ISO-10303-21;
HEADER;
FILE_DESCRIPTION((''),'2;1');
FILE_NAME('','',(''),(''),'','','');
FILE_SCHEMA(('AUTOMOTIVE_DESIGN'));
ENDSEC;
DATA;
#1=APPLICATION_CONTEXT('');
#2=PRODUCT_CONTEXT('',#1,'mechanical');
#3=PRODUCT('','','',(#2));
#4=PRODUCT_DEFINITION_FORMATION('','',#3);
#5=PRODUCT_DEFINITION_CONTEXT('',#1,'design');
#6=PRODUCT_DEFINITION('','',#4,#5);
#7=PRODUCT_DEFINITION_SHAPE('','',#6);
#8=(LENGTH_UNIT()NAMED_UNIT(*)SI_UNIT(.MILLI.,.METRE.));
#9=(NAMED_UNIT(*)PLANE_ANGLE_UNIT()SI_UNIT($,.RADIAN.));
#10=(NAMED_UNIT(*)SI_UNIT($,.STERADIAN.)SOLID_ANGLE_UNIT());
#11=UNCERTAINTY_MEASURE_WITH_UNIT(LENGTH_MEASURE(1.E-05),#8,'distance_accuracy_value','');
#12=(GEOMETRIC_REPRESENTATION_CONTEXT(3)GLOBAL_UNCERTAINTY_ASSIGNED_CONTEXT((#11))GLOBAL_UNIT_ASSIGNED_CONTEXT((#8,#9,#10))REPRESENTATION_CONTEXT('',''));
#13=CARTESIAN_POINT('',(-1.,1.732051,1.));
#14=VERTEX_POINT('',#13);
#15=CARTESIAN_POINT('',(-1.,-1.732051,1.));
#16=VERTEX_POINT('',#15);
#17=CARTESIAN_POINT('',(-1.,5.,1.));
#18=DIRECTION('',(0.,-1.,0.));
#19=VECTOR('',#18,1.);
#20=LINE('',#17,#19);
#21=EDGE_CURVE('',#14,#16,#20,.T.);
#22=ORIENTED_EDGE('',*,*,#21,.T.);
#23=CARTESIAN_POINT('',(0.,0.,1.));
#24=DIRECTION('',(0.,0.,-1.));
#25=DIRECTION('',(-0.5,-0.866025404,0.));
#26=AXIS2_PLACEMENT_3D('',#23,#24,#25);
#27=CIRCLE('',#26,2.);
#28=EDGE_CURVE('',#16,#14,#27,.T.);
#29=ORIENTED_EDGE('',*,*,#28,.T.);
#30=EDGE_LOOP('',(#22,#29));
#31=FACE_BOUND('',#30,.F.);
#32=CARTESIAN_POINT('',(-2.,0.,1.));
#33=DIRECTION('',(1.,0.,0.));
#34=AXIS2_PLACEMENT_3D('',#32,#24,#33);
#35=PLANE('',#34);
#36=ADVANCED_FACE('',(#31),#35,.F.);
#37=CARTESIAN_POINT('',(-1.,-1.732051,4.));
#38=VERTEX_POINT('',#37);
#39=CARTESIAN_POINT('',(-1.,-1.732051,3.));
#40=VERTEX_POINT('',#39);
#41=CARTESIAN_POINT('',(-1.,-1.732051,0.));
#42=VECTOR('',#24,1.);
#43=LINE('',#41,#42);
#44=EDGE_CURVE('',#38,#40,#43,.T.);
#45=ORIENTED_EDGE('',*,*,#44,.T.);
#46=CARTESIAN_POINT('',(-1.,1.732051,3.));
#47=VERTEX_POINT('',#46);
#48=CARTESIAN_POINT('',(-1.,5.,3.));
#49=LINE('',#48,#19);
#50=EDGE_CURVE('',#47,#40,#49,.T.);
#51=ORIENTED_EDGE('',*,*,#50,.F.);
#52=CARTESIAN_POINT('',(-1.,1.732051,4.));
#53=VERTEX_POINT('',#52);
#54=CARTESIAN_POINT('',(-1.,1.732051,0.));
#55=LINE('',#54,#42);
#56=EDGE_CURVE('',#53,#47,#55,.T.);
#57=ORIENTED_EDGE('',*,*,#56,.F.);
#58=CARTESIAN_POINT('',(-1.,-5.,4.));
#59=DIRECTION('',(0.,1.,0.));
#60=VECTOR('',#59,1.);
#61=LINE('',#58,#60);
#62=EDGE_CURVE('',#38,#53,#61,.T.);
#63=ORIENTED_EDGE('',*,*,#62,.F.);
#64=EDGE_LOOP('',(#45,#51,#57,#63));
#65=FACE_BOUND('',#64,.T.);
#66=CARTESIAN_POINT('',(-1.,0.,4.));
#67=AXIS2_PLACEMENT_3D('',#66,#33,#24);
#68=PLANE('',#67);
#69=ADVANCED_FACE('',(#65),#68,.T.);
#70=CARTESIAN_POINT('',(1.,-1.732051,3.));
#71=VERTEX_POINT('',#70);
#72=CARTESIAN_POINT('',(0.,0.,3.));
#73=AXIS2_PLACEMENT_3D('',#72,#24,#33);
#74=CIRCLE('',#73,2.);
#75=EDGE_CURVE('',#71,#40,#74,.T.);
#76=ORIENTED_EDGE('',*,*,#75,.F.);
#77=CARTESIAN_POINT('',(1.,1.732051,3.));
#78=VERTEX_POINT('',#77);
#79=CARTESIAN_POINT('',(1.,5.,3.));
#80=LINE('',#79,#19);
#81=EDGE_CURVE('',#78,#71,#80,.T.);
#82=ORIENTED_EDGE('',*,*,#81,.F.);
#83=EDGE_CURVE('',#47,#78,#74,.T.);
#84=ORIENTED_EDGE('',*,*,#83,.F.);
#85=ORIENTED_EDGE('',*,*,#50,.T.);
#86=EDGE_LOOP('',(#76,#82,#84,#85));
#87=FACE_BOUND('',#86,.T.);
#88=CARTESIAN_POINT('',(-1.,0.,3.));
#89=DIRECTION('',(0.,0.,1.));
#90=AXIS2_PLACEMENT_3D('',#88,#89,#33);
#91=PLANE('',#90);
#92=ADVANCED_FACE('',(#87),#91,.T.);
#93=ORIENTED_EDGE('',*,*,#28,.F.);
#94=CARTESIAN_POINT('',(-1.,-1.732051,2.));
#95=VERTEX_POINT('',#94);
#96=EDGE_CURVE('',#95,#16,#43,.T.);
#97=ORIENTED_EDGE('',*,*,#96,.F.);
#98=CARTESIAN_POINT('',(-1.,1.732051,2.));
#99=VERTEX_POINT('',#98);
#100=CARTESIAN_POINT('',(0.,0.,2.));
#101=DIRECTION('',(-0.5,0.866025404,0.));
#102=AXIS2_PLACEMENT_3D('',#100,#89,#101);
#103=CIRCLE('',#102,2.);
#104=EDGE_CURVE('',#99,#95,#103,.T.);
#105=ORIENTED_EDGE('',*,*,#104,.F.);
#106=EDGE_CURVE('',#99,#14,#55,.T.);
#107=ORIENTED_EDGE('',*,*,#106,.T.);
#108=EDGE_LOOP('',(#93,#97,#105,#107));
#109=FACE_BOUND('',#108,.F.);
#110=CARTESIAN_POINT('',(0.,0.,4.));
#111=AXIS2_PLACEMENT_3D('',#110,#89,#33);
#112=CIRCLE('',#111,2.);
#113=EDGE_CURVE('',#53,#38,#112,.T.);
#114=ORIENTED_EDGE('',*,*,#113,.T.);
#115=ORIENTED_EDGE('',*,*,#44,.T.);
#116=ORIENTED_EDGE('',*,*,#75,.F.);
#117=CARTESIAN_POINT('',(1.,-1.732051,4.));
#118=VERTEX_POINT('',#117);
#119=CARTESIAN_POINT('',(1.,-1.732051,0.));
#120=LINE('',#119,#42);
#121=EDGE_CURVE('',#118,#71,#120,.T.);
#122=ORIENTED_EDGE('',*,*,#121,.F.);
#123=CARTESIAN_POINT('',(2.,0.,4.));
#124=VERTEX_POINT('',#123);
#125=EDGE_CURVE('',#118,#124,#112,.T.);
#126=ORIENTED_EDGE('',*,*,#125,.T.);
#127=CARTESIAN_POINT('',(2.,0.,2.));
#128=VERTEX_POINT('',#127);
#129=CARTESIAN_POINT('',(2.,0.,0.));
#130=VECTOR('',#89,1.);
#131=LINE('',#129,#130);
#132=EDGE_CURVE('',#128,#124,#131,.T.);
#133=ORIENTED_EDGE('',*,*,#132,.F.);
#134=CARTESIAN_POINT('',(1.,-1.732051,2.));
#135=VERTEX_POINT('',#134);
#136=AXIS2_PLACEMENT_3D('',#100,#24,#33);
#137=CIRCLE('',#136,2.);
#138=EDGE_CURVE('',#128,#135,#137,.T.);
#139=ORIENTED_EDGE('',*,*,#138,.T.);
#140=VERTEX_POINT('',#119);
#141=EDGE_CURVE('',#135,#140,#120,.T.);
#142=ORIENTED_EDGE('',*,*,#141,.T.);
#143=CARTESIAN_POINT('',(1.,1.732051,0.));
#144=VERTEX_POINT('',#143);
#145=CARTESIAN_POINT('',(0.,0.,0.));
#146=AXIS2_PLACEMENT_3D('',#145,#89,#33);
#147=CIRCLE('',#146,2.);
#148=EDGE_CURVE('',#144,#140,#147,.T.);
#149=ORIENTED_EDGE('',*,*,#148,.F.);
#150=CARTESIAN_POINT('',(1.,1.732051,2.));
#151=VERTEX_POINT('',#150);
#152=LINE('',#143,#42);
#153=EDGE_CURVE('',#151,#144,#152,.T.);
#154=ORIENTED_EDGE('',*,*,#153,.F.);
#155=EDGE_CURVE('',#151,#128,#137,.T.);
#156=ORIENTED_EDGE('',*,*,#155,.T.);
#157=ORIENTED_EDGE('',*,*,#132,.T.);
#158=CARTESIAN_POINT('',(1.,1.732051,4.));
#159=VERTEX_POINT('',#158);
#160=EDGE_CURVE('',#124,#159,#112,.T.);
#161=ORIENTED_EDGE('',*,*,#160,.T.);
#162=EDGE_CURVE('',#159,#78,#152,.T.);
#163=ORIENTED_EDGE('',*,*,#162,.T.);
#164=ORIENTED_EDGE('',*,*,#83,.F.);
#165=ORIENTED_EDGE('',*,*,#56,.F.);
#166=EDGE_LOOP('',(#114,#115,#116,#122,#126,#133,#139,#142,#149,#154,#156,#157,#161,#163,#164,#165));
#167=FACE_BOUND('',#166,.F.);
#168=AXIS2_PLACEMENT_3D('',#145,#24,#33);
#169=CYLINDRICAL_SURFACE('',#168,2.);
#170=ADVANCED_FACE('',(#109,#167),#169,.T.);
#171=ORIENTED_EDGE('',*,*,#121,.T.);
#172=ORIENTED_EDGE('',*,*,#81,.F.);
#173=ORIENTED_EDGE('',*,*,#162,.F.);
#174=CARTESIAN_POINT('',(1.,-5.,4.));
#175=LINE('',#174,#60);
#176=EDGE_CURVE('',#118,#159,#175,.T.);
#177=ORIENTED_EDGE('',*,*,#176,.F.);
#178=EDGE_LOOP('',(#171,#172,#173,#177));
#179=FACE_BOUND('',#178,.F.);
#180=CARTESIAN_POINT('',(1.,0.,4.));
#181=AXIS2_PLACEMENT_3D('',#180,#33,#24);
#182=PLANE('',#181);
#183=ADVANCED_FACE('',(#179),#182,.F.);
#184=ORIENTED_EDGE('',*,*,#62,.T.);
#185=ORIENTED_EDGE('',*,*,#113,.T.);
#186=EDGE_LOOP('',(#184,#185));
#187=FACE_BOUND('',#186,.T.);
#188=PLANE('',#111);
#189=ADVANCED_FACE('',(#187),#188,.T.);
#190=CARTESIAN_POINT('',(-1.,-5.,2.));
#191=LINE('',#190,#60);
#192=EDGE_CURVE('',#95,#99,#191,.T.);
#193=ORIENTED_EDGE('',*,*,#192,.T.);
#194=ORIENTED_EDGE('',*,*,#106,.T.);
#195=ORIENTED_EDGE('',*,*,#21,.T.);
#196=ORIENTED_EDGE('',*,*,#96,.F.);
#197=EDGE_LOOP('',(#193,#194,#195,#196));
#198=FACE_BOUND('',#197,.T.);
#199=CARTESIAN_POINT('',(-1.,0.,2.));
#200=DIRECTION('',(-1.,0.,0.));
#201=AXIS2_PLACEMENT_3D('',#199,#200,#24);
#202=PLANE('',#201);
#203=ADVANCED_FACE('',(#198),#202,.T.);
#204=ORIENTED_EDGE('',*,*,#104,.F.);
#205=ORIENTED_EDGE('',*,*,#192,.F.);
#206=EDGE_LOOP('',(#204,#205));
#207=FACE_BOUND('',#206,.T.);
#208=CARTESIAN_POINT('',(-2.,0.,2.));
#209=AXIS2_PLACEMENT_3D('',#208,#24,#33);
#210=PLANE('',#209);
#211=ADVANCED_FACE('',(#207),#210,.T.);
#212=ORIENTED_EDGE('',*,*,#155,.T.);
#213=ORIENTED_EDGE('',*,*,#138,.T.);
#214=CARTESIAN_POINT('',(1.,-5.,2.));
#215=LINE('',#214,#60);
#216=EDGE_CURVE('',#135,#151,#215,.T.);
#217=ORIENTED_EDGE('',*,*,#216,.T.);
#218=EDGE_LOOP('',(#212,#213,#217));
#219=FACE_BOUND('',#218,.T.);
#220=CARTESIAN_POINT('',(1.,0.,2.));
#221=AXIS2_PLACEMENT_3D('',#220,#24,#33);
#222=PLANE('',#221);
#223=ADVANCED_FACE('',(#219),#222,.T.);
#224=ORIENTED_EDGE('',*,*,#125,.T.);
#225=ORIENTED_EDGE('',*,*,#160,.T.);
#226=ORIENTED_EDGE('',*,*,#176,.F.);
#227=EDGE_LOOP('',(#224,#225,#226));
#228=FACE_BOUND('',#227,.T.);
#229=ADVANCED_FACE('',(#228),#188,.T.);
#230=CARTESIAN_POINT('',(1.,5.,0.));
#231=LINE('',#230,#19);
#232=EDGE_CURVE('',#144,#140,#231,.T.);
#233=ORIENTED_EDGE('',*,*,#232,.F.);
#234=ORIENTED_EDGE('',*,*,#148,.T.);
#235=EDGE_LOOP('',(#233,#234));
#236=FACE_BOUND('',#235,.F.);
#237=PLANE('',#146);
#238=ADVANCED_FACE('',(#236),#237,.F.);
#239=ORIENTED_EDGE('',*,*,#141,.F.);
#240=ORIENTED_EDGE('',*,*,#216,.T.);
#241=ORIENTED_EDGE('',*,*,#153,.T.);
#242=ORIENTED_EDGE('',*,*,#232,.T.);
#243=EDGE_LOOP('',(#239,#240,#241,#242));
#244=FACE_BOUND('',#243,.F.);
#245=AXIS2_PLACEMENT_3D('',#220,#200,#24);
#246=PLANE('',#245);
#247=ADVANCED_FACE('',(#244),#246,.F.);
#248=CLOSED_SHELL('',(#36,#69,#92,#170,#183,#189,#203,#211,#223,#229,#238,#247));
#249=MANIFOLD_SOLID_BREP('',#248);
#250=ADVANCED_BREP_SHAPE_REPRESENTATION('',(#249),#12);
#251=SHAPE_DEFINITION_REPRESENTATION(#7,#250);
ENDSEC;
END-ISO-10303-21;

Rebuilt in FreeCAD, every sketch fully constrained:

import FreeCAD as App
import Part
import Sketcher


def add_polygon(sketch, points):
    """Adds a closed chain of lines whose ends are joined by coincident constraints."""
    first, n = sketch.GeometryCount, len(points)
    for a, b in zip(points, points[1:] + points[:1]):
        sketch.addGeometry(Part.LineSegment(App.Vector(*a, 0), App.Vector(*b, 0)), False)
    for i in range(n):
        sketch.addConstraint(Sketcher.Constraint("Coincident", first + i, 2, first + (i + 1) % n, 1))

doc = App.newDocument("Part")
body = doc.addObject("PartDesign::Body", "Body")

# Sketch on XY plane
sketch1 = doc.addObject("Sketcher::SketchObject", "Sketch")
body.addObject(sketch1)
sketch1.AttachmentSupport = (doc.XY_Plane, [""])
sketch1.MapMode = "FlatFace"
sketch1.addGeometry(Part.Circle(App.Vector(0, 0, 0), App.Vector(0, 0, 1), 2), False)
sketch1.addConstraint(Sketcher.Constraint("Coincident", 0, 3, -1, 1))
sketch1.addConstraint(Sketcher.Constraint("Diameter", 0, 4.0))
pad1 = doc.addObject("PartDesign::Pad", "Pad")
body.addObject(pad1)
pad1.Profile = sketch1
pad1.Length = 4

# Sketch on XZ plane
sketch2 = doc.addObject("Sketcher::SketchObject", "Sketch001")
body.addObject(sketch2)
sketch2.AttachmentSupport = (doc.XZ_Plane, [""])
sketch2.MapMode = "FlatFace"
add_polygon(sketch2, [(-2, 1), (-2, 2), (-1, 2), (-1, 1)])  # lines 0-3
add_polygon(sketch2, [(1, 0), (1, 2), (2, 2), (2, 0)])  # lines 4-7
add_polygon(sketch2, [(-1, 3), (-1, 4), (1, 4), (1, 3)])  # lines 8-11
sketch2.addConstraint(Sketcher.Constraint("Vertical", 0))
sketch2.addConstraint(Sketcher.Constraint("Horizontal", 1))
sketch2.addConstraint(Sketcher.Constraint("Vertical", 2))
sketch2.addConstraint(Sketcher.Constraint("Horizontal", 3))
sketch2.addConstraint(Sketcher.Constraint("Vertical", 4))
sketch2.addConstraint(Sketcher.Constraint("Horizontal", 5))
sketch2.addConstraint(Sketcher.Constraint("Vertical", 6))
sketch2.addConstraint(Sketcher.Constraint("Horizontal", 7))
sketch2.addConstraint(Sketcher.Constraint("Vertical", 8))
sketch2.addConstraint(Sketcher.Constraint("Horizontal", 9))
sketch2.addConstraint(Sketcher.Constraint("Vertical", 10))
sketch2.addConstraint(Sketcher.Constraint("Horizontal", 11))
sketch2.addConstraint(Sketcher.Constraint("Symmetric", 1, 2, 4, 2, -2))
sketch2.addConstraint(Sketcher.Constraint("PointOnObject", 6, 2, -1))
sketch2.addConstraint(Sketcher.Constraint("Vertical", 2, 2, 8, 2))
sketch2.addConstraint(Sketcher.Constraint("Vertical", 7, 2, 9, 2))
sketch2.addConstraint(Sketcher.Constraint("Equal", 3, 5))
sketch2.addConstraint(Sketcher.Constraint("Equal", 7, 0))
sketch2.addConstraint(Sketcher.Constraint("Equal", 11, 4))
sketch2.addConstraint(Sketcher.Constraint("Equal", 2, 8))
sketch2.addConstraint(Sketcher.Constraint("DistanceX", 1, 1, 1, 2, 1.0))
sketch2.addConstraint(Sketcher.Constraint("DistanceX", 9, 1, 9, 2, 2.0))
sketch2.addConstraint(Sketcher.Constraint("DistanceY", -1, 1, 8, 2, 4.0))
pocket1 = doc.addObject("PartDesign::Pocket", "Pocket")
body.addObject(pocket1)
pocket1.Profile = sketch2
pocket1.Length = 10
pocket1.Midplane = True

doc.recompute()
